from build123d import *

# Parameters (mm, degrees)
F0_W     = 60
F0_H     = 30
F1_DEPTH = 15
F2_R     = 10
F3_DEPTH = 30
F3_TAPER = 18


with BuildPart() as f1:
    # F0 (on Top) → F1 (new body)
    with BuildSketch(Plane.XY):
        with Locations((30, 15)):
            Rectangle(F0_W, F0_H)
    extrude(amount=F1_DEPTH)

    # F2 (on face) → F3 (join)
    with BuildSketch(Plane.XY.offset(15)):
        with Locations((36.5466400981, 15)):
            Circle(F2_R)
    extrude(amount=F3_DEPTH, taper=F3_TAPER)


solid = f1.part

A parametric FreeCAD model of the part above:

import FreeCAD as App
import Part
import Sketcher

doc = App.newDocument("Part")
body = doc.addObject("PartDesign::Body", "Body")

# Sketch on XY plane
sketch1 = doc.addObject("Sketcher::SketchObject", "Sketch")
body.addObject(sketch1)
sketch1.AttachmentSupport = (doc.XY_Plane, [""])
sketch1.MapMode = "FlatFace"
sketch1.addGeometry([
    Part.LineSegment(App.Vector(0, 30, 0), App.Vector(0, 0, 0)),
    Part.LineSegment(App.Vector(0, 0, 0), App.Vector(60, 0, 0)),
    Part.LineSegment(App.Vector(60, 0, 0), App.Vector(60, 30, 0)),
    Part.LineSegment(App.Vector(60, 30, 0), App.Vector(0, 30, 0)),
], False)
sketch1.addConstraint([
    Sketcher.Constraint("Coincident", 0, 2, 1, 1),
    Sketcher.Constraint("Coincident", 1, 2, 2, 1),
    Sketcher.Constraint("Coincident", 2, 2, 3, 1),
    Sketcher.Constraint("Coincident", 3, 2, 0, 1),
    Sketcher.Constraint("Vertical", 0),
    Sketcher.Constraint("Horizontal", 1),
    Sketcher.Constraint("Vertical", 2),
    Sketcher.Constraint("Horizontal", 3),
    Sketcher.Constraint("Coincident", 0, 2, -1, 1),
    Sketcher.Constraint("DistanceX", 1, 1, 1, 2, 60.0),
    Sketcher.Constraint("DistanceY", 0, 2, 0, 1, 30.0),
])
pad1 = doc.addObject("PartDesign::Pad", "Pad")
body.addObject(pad1)
pad1.Profile = sketch1
pad1.Length = 15

# Sketch on XY plane
sketch2 = doc.addObject("Sketcher::SketchObject", "Sketch001")
body.addObject(sketch2)
sketch2.AttachmentSupport = (doc.XY_Plane, [""])
sketch2.MapMode = "FlatFace"
sketch2.AttachmentOffset = App.Placement(App.Vector(0, 0, 15), App.Rotation())
sketch2.addGeometry(Part.Circle(App.Vector(37, 15, 0), App.Vector(0, 0, 1), 10), False)
sketch2.addConstraint([
    Sketcher.Constraint("Diameter", 0, 20.0),
    Sketcher.Constraint("DistanceY", -1, 1, 0, 3, 15.0),
    Sketcher.Constraint("DistanceX", -1, 1, 0, 3, 36.54664),
])
pad2 = doc.addObject("PartDesign::Pad", "Pad001")
body.addObject(pad2)
pad2.Profile = sketch2
pad2.Length = 30
pad2.TaperAngle = -18

doc.recompute()
